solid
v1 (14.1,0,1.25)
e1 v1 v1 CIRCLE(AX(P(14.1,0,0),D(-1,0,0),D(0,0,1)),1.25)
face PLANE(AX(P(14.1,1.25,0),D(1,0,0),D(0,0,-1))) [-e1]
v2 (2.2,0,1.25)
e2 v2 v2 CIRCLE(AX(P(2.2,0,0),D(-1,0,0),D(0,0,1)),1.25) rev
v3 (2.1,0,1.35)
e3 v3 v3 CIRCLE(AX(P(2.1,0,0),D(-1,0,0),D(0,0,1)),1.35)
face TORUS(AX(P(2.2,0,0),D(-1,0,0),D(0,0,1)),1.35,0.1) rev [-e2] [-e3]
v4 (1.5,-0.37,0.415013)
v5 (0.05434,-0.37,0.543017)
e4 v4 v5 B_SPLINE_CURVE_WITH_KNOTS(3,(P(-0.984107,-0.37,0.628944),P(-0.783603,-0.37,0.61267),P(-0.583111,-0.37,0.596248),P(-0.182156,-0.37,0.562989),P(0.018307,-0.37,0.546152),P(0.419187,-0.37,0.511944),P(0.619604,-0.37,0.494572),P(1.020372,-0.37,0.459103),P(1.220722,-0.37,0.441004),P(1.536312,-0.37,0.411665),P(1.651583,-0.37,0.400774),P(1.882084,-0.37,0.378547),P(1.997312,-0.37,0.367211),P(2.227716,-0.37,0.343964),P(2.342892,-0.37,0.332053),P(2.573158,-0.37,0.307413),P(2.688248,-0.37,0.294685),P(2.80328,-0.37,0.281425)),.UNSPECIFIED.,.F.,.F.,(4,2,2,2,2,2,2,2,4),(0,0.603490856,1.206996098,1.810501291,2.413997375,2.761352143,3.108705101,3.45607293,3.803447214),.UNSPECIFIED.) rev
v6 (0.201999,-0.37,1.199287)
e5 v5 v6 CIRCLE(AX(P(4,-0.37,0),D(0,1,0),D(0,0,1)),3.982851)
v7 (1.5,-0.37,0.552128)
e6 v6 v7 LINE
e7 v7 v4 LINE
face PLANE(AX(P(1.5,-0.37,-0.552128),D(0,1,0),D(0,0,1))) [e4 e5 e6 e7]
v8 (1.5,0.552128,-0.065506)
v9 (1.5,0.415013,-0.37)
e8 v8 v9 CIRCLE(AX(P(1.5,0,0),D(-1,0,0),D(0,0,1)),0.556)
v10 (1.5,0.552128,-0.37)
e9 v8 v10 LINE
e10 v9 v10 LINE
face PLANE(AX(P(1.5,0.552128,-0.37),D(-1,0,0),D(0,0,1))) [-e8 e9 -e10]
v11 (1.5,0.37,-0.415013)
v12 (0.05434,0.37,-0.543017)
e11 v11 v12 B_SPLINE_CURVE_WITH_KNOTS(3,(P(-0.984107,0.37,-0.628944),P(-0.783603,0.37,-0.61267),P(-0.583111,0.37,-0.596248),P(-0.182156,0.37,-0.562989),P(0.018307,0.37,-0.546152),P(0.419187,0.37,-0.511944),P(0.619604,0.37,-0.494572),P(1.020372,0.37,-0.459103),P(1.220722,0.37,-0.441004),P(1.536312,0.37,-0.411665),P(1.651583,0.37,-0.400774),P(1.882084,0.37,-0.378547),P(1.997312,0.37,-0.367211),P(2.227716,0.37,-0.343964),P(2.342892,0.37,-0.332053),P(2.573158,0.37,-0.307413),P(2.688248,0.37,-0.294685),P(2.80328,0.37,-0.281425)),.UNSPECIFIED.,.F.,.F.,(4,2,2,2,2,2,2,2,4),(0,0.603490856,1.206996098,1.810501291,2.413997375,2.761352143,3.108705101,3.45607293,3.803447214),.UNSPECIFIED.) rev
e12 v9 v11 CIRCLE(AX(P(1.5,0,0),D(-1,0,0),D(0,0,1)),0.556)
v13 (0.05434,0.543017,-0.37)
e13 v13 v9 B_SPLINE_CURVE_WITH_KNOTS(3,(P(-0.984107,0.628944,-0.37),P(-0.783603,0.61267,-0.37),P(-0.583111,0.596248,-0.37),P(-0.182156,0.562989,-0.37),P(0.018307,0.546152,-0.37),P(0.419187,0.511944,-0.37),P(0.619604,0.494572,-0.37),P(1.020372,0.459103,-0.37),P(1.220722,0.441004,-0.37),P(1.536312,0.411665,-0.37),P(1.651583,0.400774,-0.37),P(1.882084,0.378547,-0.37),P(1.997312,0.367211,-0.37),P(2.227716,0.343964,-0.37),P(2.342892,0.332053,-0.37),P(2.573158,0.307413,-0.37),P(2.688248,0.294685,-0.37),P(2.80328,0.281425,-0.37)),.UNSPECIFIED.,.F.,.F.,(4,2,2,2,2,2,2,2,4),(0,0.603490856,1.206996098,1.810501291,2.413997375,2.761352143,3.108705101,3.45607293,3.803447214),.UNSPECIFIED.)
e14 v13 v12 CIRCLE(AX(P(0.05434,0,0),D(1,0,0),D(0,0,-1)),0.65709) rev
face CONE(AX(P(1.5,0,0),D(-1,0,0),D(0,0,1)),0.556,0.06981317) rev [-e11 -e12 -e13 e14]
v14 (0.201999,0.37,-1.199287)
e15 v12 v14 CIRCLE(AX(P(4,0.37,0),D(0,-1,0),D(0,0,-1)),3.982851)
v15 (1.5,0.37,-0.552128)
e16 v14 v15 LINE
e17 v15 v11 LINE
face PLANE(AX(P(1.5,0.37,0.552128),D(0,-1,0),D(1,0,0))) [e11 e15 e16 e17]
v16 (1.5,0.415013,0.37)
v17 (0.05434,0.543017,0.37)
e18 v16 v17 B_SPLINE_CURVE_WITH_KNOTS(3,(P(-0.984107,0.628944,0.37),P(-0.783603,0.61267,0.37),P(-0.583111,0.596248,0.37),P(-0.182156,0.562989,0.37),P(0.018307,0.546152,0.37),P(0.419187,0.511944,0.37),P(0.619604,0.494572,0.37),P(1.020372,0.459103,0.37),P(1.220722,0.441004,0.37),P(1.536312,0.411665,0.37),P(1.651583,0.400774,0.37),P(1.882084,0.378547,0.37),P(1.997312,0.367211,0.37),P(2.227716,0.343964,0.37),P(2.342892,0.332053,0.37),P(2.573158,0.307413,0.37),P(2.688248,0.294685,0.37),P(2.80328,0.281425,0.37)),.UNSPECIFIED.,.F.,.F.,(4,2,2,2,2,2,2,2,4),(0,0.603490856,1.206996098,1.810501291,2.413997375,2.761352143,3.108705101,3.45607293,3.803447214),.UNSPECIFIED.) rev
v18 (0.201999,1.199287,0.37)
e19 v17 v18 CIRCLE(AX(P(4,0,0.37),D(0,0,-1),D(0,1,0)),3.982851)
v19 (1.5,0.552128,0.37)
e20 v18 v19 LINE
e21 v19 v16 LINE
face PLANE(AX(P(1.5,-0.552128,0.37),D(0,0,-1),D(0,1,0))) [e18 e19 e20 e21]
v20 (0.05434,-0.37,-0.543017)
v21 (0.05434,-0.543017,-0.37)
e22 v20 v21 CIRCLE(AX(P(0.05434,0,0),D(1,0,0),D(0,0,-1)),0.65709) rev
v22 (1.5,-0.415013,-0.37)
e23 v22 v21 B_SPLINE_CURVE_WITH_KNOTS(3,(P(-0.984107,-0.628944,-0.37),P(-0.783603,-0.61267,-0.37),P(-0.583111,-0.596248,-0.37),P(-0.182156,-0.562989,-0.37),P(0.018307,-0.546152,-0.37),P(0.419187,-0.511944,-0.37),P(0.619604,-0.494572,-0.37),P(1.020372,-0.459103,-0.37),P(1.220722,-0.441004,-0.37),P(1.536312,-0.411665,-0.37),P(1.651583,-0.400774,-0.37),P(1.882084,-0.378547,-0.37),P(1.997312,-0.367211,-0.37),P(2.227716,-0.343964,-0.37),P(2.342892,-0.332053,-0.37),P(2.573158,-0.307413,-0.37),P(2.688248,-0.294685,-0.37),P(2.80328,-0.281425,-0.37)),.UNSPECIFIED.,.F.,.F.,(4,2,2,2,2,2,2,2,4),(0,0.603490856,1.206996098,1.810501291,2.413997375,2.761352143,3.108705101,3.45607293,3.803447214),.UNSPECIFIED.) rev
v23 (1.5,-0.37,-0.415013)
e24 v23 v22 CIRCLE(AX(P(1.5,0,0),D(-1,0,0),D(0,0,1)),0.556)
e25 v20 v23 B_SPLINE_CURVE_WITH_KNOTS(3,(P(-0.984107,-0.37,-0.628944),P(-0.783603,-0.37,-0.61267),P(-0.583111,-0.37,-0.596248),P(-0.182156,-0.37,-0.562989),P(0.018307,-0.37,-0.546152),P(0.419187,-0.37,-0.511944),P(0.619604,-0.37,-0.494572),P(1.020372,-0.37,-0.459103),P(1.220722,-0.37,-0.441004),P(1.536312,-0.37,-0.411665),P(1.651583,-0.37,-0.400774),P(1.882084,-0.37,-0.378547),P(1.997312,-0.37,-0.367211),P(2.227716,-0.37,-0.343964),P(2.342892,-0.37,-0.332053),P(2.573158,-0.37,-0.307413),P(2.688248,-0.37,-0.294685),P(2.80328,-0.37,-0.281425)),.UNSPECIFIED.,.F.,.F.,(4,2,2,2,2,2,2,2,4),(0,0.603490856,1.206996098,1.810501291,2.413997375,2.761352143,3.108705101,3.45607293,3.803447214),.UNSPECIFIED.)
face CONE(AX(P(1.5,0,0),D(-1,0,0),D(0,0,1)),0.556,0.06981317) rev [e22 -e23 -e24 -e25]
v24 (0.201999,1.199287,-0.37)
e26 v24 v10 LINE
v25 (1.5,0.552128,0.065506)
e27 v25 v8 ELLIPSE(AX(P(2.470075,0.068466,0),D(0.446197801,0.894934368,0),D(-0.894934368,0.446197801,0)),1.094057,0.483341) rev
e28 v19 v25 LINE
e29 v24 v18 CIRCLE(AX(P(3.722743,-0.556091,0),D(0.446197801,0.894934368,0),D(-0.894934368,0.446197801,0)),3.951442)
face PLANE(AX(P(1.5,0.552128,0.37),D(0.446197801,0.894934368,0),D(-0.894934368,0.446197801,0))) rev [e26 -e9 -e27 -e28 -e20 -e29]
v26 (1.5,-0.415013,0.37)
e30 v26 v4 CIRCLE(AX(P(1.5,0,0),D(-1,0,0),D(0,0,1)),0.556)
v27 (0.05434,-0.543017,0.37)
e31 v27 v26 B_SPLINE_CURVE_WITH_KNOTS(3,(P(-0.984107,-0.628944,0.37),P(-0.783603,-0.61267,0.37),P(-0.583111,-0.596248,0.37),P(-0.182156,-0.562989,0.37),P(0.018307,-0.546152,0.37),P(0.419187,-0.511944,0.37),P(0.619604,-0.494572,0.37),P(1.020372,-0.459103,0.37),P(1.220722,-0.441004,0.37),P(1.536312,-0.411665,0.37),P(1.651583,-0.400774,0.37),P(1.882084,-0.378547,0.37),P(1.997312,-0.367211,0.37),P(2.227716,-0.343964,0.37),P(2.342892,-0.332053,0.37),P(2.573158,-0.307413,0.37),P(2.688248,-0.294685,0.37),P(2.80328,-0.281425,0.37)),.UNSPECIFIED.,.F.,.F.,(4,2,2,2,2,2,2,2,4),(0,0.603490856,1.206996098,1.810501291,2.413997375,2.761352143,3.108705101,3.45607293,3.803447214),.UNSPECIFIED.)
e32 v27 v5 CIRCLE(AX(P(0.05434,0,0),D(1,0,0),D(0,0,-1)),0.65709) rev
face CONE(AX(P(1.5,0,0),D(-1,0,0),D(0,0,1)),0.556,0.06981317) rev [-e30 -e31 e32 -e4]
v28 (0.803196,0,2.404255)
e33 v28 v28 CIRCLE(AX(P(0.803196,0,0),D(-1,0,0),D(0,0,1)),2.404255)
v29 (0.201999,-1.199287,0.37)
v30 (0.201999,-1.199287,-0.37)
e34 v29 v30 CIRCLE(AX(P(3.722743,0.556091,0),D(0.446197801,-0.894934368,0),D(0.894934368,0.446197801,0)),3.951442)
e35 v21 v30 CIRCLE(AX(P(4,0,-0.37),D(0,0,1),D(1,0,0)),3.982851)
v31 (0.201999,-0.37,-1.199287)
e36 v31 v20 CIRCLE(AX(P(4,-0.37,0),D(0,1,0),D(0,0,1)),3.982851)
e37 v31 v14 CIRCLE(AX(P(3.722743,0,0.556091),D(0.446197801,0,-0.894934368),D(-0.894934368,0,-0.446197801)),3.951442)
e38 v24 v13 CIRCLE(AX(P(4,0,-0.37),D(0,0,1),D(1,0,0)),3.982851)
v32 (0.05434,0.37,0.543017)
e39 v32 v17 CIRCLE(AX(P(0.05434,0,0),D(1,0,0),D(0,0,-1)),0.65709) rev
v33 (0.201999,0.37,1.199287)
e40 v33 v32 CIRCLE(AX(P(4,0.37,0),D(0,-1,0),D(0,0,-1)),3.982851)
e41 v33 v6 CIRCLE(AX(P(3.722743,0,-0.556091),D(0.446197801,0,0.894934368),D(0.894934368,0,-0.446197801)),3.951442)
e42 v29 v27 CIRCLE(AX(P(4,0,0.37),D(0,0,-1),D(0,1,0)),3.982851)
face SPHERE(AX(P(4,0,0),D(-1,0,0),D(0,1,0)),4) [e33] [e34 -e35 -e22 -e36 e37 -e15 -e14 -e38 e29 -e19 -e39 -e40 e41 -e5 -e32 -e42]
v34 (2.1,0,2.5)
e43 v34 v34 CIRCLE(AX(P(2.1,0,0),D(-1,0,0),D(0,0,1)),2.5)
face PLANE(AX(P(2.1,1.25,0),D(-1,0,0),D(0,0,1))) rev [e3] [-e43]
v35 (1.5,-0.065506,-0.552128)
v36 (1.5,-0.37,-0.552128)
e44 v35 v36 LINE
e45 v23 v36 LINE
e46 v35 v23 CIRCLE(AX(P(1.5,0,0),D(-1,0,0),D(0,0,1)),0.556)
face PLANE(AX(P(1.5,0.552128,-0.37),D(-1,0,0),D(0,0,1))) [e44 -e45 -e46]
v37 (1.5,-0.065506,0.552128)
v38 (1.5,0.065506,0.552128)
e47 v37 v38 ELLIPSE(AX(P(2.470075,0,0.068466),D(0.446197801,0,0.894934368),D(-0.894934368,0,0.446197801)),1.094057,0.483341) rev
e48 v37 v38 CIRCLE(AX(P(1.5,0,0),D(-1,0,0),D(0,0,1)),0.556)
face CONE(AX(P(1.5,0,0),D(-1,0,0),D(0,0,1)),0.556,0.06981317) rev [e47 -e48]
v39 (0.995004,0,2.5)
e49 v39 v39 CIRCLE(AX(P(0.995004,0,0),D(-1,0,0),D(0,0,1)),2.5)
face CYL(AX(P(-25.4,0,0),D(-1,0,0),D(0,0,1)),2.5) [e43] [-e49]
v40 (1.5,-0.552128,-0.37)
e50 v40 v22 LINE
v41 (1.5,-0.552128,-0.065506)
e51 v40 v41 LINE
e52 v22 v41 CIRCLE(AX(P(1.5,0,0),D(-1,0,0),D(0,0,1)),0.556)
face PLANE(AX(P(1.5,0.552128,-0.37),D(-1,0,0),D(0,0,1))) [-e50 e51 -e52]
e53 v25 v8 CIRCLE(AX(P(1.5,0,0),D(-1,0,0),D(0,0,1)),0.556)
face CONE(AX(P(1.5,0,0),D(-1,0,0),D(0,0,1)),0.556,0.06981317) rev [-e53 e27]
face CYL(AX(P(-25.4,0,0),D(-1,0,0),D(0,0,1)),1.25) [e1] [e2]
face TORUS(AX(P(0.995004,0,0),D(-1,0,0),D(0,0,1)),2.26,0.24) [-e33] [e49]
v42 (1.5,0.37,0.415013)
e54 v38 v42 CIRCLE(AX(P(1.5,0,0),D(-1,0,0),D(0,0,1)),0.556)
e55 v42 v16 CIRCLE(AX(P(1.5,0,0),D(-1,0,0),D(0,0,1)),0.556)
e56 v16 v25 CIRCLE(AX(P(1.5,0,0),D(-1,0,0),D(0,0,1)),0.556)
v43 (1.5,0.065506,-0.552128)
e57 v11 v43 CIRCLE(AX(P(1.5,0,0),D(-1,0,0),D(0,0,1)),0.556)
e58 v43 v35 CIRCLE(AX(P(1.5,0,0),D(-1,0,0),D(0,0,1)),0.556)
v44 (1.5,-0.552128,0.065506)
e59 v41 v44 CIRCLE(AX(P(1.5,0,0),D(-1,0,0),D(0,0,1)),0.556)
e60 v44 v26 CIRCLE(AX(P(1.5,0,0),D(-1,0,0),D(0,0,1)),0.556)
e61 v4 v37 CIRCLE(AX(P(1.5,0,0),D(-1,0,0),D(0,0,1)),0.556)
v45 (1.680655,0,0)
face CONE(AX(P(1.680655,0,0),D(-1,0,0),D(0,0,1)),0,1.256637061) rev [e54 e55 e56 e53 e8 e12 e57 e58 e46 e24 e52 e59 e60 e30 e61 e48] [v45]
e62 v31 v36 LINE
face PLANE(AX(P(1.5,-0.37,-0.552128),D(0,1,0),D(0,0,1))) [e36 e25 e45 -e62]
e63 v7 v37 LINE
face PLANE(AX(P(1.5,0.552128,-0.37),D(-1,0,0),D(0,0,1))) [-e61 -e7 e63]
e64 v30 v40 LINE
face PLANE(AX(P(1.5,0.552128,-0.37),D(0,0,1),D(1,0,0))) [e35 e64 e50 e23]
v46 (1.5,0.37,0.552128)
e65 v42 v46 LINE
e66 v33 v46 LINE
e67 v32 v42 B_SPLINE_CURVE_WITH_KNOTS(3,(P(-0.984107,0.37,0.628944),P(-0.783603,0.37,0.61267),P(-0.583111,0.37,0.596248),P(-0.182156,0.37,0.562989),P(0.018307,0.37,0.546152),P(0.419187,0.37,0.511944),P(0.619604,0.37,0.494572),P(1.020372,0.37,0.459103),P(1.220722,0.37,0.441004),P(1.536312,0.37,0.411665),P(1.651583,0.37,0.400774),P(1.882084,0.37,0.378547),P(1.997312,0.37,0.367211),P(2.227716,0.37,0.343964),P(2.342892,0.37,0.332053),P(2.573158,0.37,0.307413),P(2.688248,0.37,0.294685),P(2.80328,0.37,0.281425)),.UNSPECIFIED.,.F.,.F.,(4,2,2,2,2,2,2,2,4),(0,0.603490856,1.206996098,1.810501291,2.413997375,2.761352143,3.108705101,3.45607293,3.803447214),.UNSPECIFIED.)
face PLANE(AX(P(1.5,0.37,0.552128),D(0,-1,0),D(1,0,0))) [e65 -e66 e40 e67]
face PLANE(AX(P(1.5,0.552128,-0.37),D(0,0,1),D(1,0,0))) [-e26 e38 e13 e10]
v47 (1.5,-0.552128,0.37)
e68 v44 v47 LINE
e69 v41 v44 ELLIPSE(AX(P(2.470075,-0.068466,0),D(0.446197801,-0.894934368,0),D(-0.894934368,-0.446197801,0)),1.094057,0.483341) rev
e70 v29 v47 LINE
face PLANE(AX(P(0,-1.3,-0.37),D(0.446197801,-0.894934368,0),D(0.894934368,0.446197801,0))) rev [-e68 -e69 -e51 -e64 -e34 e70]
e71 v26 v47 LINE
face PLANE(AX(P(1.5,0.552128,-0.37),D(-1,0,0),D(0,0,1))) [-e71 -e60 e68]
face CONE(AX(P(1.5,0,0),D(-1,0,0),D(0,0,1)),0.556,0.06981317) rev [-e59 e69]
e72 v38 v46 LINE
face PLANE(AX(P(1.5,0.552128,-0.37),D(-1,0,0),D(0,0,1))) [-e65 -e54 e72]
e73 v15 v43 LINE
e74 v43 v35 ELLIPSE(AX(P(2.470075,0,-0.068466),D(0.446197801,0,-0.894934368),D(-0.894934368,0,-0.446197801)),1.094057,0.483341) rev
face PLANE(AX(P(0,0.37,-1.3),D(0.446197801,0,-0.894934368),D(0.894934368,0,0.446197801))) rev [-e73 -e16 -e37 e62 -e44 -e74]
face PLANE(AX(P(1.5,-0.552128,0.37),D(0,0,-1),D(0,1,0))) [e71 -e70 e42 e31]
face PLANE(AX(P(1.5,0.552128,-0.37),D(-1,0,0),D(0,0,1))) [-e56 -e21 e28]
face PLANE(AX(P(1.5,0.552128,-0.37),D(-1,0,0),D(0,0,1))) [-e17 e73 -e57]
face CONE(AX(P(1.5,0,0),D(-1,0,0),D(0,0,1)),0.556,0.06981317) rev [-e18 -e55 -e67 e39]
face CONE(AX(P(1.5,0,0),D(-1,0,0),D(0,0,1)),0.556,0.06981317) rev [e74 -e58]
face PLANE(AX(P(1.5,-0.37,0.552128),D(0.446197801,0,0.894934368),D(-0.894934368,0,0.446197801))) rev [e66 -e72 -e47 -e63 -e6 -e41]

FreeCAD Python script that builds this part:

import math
import FreeCAD as App
import Part
import Sketcher
from FreeCAD import Vector
Q = App.Units.Quantity


def edges_at(feature, points):
    """Names of the edges that pass closest to the given points."""
    edges = feature.Shape.Edges
    near = lambda p: min(range(len(edges)), key=lambda i: edges[i].distToShape(Part.Vertex(*p))[0])
    return sorted({f"Edge{near(p) + 1}" for p in points})

doc = App.newDocument("Part")
params = doc.addObject("Spreadsheet::Sheet", "Params")
for row, (alias, value) in enumerate([
    ("sketch1_radius", "4 mm"),
    ("sketch1_width", "12 mm"),
    ("sketch1_radius2", "0.24 mm"),
    ("sketch1_width2", "14.1 mm"),
    ("sketch1_height", "1.25 mm"),
    ("revolution_angle", "360 deg"),
    ("fillet_radius", "0.1 mm"),
    ("sketch2_width", "2.6 mm"),
    ("sketch2_height", "0.74 mm"),
    ("sketch3_height", "0.74 mm"),
    ("groove_angle", "360 deg"),
], start=1):
    params.set(f"A{row}", alias)
    params.set(f"B{row}", "=" + value)
    params.setAlias(f"B{row}", alias)

body = doc.addObject("PartDesign::Body", "Body")

sketch1 = body.newObject("Sketcher::SketchObject", "Sketch")
sketch1.AttachmentSupport = (doc.getObject("XY_Plane"), [""])
sketch1.MapMode = "FlatFace"
sketch1.addGeometry(Part.LineSegment(Vector(2.1, 1.25, 0), Vector(2.1, 2.5, 0)), False)
sketch1.addGeometry(Part.LineSegment(Vector(2.1, 2.5, 0), Vector(1, 2.5, 0)), False)
sketch1.addGeometry(Part.ArcOfCircle(Part.Circle(Vector(1, 2.26, 0), Vector(0, 0, 1), 0.24), math.radians(90), math.radians(143)), False)
sketch1.addGeometry(Part.ArcOfCircle(Part.Circle(Vector(4, 0, 0), Vector(0, 0, 1), 4), math.radians(143), math.radians(180)), False)
sketch1.addGeometry(Part.LineSegment(Vector(0, 0, 0), Vector(14.1, 0, 0)), False)
sketch1.addGeometry(Part.LineSegment(Vector(14.1, 0, 0), Vector(14.1, 1.25, 0)), False)
sketch1.addGeometry(Part.LineSegment(Vector(14.1, 1.25, 0), Vector(2.1, 1.25, 0)), False)
sketch1.addConstraint(Sketcher.Constraint("Coincident", 0, 2, 1, 1))
sketch1.addConstraint(Sketcher.Constraint("Tangent", 1, 2, 2, 1))
sketch1.addConstraint(Sketcher.Constraint("Tangent", 2, 2, 3, 1))
sketch1.addConstraint(Sketcher.Constraint("Coincident", 3, 2, 4, 1))
sketch1.addConstraint(Sketcher.Constraint("Coincident", 4, 2, 5, 1))
sketch1.addConstraint(Sketcher.Constraint("Coincident", 5, 2, 6, 1))
sketch1.addConstraint(Sketcher.Constraint("Coincident", 6, 2, 0, 1))
sketch1.addConstraint(Sketcher.Constraint("Vertical", 0))
sketch1.addConstraint(Sketcher.Constraint("Horizontal", 1))
sketch1.addConstraint(Sketcher.Constraint("Horizontal", 4))
sketch1.addConstraint(Sketcher.Constraint("Vertical", 5))
sketch1.addConstraint(Sketcher.Constraint("Horizontal", 6))
sketch1.addConstraint(Sketcher.Constraint("Coincident", 3, 2, -1, 1))
sketch1.addConstraint(Sketcher.Constraint("PointOnObject", 3, 3, -1))
sketch1.addConstraint(Sketcher.Constraint("Equal", 0, 5))
sketch1.addConstraint(Sketcher.Constraint("Radius", 3, Q("4 mm")))
sketch1.addConstraint(Sketcher.Constraint("DistanceX", 6, 2, 6, 1, Q("12 mm")))
sketch1.addConstraint(Sketcher.Constraint("Radius", 2, Q("0.24 mm")))
sketch1.addConstraint(Sketcher.Constraint("DistanceX", 4, 1, 4, 2, Q("14.1 mm")))
sketch1.addConstraint(Sketcher.Constraint("DistanceY", 0, 1, 0, 2, Q("1.25 mm")))
sketch1.setExpression("Constraints[15]", "Params.sketch1_radius")
sketch1.setExpression("Constraints[16]", "Params.sketch1_width")
sketch1.setExpression("Constraints[17]", "Params.sketch1_radius2")
sketch1.setExpression("Constraints[18]", "Params.sketch1_width2")
sketch1.setExpression("Constraints[19]", "Params.sketch1_height")
revolution = body.newObject("PartDesign::Revolution", "Revolution")
revolution.Profile = sketch1
revolution.ReferenceAxis = (sketch1, ["H_Axis"])
revolution.setExpression("Angle", "Params.revolution_angle")
doc.recompute()

fillet = body.newObject("PartDesign::Fillet", "Fillet")
fillet.Base = (revolution, edges_at(revolution, [(2.1, 0, -1.25)]))
fillet.setExpression("Radius", "Params.fillet_radius")

sketch2 = body.newObject("Sketcher::SketchObject", "Sketch001")
sketch2.AttachmentSupport = (doc.getObject("YZ_Plane"), [""])
sketch2.MapMode = "FlatFace"
sketch2.addGeometry(Part.LineSegment(Vector(-1.3, 0.4, 0), Vector(-1.3, -0.4, 0)), False)
sketch2.addGeometry(Part.LineSegment(Vector(-1.3, -0.4, 0), Vector(1.3, -0.4, 0)), False)
sketch2.addGeometry(Part.LineSegment(Vector(1.3, -0.4, 0), Vector(1.3, 0.4, 0)), False)
sketch2.addGeometry(Part.LineSegment(Vector(1.3, 0.4, 0), Vector(-1.3, 0.4, 0)), False)
sketch2.addConstraint(Sketcher.Constraint("Coincident", 0, 2, 1, 1))
sketch2.addConstraint(Sketcher.Constraint("Coincident", 1, 2, 2, 1))
sketch2.addConstraint(Sketcher.Constraint("Coincident", 2, 2, 3, 1))
sketch2.addConstraint(Sketcher.Constraint("Coincident", 3, 2, 0, 1))
sketch2.addConstraint(Sketcher.Constraint("Vertical", 0))
sketch2.addConstraint(Sketcher.Constraint("Horizontal", 1))
sketch2.addConstraint(Sketcher.Constraint("Vertical", 2))
sketch2.addConstraint(Sketcher.Constraint("Horizontal", 3))
sketch2.addConstraint(Sketcher.Constraint("Symmetric", 0, 2, 2, 2, -1, 1))
sketch2.addConstraint(Sketcher.Constraint("DistanceX", 1, 1, 1, 2, Q("2.6 mm")))
sketch2.addConstraint(Sketcher.Constraint("DistanceY", 0, 2, 0, 1, Q("0.74 mm")))
sketch2.setExpression("Constraints[9]", "Params.sketch2_width")
sketch2.setExpression("Constraints[10]", "Params.sketch2_height")

sketch3 = body.newObject("Sketcher::SketchObject", "Sketch002")
sketch3.AttachmentSupport = (doc.getObject("YZ_Plane"), [""])
sketch3.MapMode = "FlatFace"
sketch3.AttachmentOffset = App.Placement(Vector(0, 0, 1.5), App.Rotation())
sketch3.addGeometry(Part.LineSegment(Vector(-0.6, 0.4, 0), Vector(-0.6, -0.4, 0)), False)
sketch3.addGeometry(Part.LineSegment(Vector(-0.6, -0.4, 0), Vector(0.6, -0.4, 0)), False)
sketch3.addGeometry(Part.LineSegment(Vector(0.6, -0.4, 0), Vector(0.6, 0.4, 0)), False)
sketch3.addGeometry(Part.LineSegment(Vector(0.6, 0.4, 0), Vector(-0.6, 0.4, 0)), False)
sketch3.addConstraint(Sketcher.Constraint("Coincident", 0, 2, 1, 1))
sketch3.addConstraint(Sketcher.Constraint("Coincident", 1, 2, 2, 1))
sketch3.addConstraint(Sketcher.Constraint("Coincident", 2, 2, 3, 1))
sketch3.addConstraint(Sketcher.Constraint("Coincident", 3, 2, 0, 1))
sketch3.addConstraint(Sketcher.Constraint("Vertical", 0))
sketch3.addConstraint(Sketcher.Constraint("Horizontal", 1))
sketch3.addConstraint(Sketcher.Constraint("Vertical", 2))
sketch3.addConstraint(Sketcher.Constraint("Horizontal", 3))
sketch3.addConstraint(Sketcher.Constraint("Symmetric", 0, 2, 2, 2, -1, 1))
sketch3.addConstraint(Sketcher.Constraint("DistanceY", 0, 2, 0, 1, Q("0.74 mm")))
sketch3.addConstraint(Sketcher.Constraint("DistanceX", 1, 1, 1, 2, Q("1.104255 mm")))
sketch3.setExpression("Constraints[9]", "Params.sketch3_height")

subtractiveloft = body.newObject("PartDesign::SubtractiveLoft", "SubtractiveLoft")
subtractiveloft.Profile = sketch2
subtractiveloft.Sections = [sketch3]
doc.recompute()

polarpattern = body.newObject("PartDesign::PolarPattern", "PolarPattern")
polarpattern.Originals = [subtractiveloft]
polarpattern.Axis = (doc.getObject("X_Axis"), [""])
polarpattern.Angle = 90
polarpattern.Occurrences = 2
body.Tip = polarpattern

sketch4 = body.newObject("Sketcher::SketchObject", "Sketch003")
sketch4.AttachmentSupport = (doc.getObject("XY_Plane"), [""])
sketch4.MapMode = "FlatFace"
sketch4.addGeometry(Part.LineSegment(Vector(0, 0.7, 0), Vector(0, 0, 0)), False)
sketch4.addGeometry(Part.LineSegment(Vector(0, 0, 0), Vector(1.7, 0, 0)), False)
sketch4.addGeometry(Part.LineSegment(Vector(1.7, 0, 0), Vector(1.5, 0.6, 0)), False)
sketch4.addGeometry(Part.LineSegment(Vector(1.5, 0.6, 0), Vector(0, 0.7, 0)), False)
sketch4.addConstraint(Sketcher.Constraint("Coincident", 0, 2, 1, 1))
sketch4.addConstraint(Sketcher.Constraint("Coincident", 1, 2, 2, 1))
sketch4.addConstraint(Sketcher.Constraint("Coincident", 2, 2, 3, 1))
sketch4.addConstraint(Sketcher.Constraint("Coincident", 3, 2, 0, 1))
sketch4.addConstraint(Sketcher.Constraint("Vertical", 0))
sketch4.addConstraint(Sketcher.Constraint("Horizontal", 1))
sketch4.addConstraint(Sketcher.Constraint("Coincident", 0, 2, -1, 1))
sketch4.addConstraint(Sketcher.Constraint("Angle", 2, Q("108 deg")))
sketch4.addConstraint(Sketcher.Constraint("Angle", 3, Q("176 deg")))
sketch4.addConstraint(Sketcher.Constraint("DistanceX", -1, 1, 2, 2, Q("1.5 mm")))
sketch4.addConstraint(Sketcher.Constraint("DistanceY", -1, 1, 2, 2, Q("0.556 mm")))
groove = body.newObject("PartDesign::Groove", "Groove")
groove.Profile = sketch4
groove.ReferenceAxis = (sketch4, ["H_Axis"])
groove.setExpression("Angle", "Params.groove_angle")

doc.recompute()
